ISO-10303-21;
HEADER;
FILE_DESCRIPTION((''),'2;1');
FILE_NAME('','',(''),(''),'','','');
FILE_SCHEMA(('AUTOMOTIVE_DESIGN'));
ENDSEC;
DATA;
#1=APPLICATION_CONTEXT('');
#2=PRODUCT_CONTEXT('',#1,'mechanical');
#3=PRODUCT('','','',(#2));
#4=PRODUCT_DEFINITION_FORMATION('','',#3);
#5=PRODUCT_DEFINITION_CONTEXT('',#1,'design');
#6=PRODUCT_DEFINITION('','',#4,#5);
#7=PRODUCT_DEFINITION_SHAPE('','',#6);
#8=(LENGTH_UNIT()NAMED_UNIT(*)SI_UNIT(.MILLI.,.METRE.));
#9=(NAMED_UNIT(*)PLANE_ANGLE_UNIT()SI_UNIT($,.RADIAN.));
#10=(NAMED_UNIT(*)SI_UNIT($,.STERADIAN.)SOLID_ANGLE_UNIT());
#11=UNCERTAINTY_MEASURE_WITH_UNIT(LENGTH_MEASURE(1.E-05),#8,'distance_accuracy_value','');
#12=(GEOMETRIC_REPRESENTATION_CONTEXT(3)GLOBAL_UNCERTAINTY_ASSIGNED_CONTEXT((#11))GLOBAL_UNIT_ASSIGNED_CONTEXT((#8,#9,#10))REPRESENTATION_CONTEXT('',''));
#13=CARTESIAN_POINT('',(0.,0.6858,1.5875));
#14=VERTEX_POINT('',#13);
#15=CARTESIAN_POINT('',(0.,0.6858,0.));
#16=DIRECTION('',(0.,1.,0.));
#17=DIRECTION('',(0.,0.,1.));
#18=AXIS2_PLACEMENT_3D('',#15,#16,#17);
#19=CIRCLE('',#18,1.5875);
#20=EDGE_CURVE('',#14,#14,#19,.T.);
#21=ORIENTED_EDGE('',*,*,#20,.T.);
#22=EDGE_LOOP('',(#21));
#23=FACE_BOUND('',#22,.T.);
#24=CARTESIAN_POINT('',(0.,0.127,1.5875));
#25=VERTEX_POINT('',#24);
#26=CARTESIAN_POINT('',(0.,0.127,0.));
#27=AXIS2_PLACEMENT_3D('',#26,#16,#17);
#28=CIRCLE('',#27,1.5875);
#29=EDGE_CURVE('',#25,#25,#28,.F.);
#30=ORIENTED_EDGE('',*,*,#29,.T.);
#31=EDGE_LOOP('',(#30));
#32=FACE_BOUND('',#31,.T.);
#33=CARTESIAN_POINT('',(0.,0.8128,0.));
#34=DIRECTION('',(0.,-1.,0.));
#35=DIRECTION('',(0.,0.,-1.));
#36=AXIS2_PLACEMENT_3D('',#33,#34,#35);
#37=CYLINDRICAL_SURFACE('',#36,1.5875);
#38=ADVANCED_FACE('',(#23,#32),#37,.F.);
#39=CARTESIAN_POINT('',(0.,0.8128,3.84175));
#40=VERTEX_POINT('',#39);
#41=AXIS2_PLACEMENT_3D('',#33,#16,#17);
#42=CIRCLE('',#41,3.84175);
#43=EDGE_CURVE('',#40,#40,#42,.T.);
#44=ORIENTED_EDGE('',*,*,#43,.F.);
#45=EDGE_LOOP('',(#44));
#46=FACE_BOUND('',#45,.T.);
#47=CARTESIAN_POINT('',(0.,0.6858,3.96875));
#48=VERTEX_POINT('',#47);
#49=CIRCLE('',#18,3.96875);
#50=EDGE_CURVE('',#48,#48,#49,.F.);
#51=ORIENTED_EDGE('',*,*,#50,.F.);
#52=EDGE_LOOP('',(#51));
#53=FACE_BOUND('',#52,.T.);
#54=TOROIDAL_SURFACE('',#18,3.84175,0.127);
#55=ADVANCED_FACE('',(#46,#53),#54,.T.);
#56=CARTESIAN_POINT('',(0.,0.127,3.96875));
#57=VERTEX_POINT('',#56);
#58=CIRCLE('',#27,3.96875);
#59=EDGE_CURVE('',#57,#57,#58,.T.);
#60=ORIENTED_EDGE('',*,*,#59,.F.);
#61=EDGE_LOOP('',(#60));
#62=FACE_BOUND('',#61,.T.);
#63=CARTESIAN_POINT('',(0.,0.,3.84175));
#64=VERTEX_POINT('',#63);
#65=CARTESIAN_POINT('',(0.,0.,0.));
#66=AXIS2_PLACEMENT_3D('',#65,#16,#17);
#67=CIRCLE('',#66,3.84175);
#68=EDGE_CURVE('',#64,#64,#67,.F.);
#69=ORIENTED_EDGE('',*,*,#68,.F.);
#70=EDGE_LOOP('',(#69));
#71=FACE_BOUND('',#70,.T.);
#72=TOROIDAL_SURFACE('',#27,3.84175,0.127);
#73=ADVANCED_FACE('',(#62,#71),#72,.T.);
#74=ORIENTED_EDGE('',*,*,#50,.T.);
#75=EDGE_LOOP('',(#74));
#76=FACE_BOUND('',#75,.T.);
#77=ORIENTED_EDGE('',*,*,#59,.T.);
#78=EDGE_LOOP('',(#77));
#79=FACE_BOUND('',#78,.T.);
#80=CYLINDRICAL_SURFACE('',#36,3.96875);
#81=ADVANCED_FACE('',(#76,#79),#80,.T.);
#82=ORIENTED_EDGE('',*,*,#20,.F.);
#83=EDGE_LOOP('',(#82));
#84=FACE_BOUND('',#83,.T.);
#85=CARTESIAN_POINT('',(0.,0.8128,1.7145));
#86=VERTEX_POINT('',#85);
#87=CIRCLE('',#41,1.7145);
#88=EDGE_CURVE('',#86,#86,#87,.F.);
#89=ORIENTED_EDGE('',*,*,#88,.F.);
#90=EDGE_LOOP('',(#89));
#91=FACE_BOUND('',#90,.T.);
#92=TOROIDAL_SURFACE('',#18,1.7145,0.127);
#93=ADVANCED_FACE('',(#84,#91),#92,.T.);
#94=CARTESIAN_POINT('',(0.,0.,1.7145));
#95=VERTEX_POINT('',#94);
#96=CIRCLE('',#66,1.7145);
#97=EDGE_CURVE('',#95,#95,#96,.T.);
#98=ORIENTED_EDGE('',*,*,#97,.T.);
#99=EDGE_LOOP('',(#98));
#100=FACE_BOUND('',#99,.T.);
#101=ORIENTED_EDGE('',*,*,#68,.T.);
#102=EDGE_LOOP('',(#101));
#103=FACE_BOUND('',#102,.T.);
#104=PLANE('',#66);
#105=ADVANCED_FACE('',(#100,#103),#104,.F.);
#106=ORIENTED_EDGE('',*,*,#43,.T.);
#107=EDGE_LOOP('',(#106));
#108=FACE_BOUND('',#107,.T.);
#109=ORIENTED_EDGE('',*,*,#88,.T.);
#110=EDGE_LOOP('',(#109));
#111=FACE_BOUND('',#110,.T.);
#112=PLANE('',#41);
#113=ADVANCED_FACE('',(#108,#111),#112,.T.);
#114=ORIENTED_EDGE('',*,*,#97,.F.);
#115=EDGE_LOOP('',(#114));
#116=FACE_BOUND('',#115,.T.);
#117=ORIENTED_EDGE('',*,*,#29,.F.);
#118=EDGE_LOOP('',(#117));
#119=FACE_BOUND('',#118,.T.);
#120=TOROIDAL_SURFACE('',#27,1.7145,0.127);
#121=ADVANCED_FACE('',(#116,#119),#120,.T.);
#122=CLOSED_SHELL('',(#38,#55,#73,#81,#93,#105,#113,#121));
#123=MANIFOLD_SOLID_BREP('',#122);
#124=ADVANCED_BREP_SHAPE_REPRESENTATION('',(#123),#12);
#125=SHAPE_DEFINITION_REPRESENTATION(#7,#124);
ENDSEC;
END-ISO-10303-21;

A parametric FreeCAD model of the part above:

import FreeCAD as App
import Part
import Sketcher

V = App.Vector
Q = App.Units.Quantity


def edges_at(feature, points):
    """Names of the edges that pass closest to the given points."""
    edges = feature.Shape.Edges
    near = lambda p: min(range(len(edges)), key=lambda i: edges[i].distToShape(Part.Vertex(*p))[0])
    return sorted({f"Edge{near(p) + 1}" for p in points})

doc = App.newDocument("Part")
body = doc.addObject("PartDesign::Body", "Body")

# Sketch on XZ plane
sketch1 = doc.addObject("Sketcher::SketchObject", "Sketch")
body.addObject(sketch1)
sketch1.AttachmentSupport = (doc.XZ_Plane, [""])
sketch1.MapMode = "FlatFace"
sketch1.addGeometry(Part.Circle(V(0, 0, 0), V(0, 0, 1), 4), False)
sketch1.addGeometry(Part.Circle(V(0, 0, 0), V(0, 0, 1), 1.6), False)
sketch1.addConstraint(Sketcher.Constraint("Coincident", 0, 3, -1, 1))
sketch1.addConstraint(Sketcher.Constraint("Coincident", 1, 3, -1, 1))
sketch1.addConstraint(Sketcher.Constraint("Diameter", 0, Q("0.3125 in")))
sketch1.addConstraint(Sketcher.Constraint("Diameter", 1, Q("0.125 in")))
pad1 = doc.addObject("PartDesign::Pad", "Pad")
body.addObject(pad1)
pad1.Profile = sketch1
pad1.Length = Q("0.032 in")
pad1.Reversed = True
doc.recompute()

fillet = doc.addObject("PartDesign::Fillet", "Fillet")
body.addObject(fillet)
fillet.Base = (pad1, edges_at(pad1, [
    (0, 0, -3.969),
    (0, 0.813, -3.969),
    (0, 0, -1.587),
    (0, 0.813, -1.587),
]))
fillet.Radius = Q("0.005 in")

doc.recompute()
